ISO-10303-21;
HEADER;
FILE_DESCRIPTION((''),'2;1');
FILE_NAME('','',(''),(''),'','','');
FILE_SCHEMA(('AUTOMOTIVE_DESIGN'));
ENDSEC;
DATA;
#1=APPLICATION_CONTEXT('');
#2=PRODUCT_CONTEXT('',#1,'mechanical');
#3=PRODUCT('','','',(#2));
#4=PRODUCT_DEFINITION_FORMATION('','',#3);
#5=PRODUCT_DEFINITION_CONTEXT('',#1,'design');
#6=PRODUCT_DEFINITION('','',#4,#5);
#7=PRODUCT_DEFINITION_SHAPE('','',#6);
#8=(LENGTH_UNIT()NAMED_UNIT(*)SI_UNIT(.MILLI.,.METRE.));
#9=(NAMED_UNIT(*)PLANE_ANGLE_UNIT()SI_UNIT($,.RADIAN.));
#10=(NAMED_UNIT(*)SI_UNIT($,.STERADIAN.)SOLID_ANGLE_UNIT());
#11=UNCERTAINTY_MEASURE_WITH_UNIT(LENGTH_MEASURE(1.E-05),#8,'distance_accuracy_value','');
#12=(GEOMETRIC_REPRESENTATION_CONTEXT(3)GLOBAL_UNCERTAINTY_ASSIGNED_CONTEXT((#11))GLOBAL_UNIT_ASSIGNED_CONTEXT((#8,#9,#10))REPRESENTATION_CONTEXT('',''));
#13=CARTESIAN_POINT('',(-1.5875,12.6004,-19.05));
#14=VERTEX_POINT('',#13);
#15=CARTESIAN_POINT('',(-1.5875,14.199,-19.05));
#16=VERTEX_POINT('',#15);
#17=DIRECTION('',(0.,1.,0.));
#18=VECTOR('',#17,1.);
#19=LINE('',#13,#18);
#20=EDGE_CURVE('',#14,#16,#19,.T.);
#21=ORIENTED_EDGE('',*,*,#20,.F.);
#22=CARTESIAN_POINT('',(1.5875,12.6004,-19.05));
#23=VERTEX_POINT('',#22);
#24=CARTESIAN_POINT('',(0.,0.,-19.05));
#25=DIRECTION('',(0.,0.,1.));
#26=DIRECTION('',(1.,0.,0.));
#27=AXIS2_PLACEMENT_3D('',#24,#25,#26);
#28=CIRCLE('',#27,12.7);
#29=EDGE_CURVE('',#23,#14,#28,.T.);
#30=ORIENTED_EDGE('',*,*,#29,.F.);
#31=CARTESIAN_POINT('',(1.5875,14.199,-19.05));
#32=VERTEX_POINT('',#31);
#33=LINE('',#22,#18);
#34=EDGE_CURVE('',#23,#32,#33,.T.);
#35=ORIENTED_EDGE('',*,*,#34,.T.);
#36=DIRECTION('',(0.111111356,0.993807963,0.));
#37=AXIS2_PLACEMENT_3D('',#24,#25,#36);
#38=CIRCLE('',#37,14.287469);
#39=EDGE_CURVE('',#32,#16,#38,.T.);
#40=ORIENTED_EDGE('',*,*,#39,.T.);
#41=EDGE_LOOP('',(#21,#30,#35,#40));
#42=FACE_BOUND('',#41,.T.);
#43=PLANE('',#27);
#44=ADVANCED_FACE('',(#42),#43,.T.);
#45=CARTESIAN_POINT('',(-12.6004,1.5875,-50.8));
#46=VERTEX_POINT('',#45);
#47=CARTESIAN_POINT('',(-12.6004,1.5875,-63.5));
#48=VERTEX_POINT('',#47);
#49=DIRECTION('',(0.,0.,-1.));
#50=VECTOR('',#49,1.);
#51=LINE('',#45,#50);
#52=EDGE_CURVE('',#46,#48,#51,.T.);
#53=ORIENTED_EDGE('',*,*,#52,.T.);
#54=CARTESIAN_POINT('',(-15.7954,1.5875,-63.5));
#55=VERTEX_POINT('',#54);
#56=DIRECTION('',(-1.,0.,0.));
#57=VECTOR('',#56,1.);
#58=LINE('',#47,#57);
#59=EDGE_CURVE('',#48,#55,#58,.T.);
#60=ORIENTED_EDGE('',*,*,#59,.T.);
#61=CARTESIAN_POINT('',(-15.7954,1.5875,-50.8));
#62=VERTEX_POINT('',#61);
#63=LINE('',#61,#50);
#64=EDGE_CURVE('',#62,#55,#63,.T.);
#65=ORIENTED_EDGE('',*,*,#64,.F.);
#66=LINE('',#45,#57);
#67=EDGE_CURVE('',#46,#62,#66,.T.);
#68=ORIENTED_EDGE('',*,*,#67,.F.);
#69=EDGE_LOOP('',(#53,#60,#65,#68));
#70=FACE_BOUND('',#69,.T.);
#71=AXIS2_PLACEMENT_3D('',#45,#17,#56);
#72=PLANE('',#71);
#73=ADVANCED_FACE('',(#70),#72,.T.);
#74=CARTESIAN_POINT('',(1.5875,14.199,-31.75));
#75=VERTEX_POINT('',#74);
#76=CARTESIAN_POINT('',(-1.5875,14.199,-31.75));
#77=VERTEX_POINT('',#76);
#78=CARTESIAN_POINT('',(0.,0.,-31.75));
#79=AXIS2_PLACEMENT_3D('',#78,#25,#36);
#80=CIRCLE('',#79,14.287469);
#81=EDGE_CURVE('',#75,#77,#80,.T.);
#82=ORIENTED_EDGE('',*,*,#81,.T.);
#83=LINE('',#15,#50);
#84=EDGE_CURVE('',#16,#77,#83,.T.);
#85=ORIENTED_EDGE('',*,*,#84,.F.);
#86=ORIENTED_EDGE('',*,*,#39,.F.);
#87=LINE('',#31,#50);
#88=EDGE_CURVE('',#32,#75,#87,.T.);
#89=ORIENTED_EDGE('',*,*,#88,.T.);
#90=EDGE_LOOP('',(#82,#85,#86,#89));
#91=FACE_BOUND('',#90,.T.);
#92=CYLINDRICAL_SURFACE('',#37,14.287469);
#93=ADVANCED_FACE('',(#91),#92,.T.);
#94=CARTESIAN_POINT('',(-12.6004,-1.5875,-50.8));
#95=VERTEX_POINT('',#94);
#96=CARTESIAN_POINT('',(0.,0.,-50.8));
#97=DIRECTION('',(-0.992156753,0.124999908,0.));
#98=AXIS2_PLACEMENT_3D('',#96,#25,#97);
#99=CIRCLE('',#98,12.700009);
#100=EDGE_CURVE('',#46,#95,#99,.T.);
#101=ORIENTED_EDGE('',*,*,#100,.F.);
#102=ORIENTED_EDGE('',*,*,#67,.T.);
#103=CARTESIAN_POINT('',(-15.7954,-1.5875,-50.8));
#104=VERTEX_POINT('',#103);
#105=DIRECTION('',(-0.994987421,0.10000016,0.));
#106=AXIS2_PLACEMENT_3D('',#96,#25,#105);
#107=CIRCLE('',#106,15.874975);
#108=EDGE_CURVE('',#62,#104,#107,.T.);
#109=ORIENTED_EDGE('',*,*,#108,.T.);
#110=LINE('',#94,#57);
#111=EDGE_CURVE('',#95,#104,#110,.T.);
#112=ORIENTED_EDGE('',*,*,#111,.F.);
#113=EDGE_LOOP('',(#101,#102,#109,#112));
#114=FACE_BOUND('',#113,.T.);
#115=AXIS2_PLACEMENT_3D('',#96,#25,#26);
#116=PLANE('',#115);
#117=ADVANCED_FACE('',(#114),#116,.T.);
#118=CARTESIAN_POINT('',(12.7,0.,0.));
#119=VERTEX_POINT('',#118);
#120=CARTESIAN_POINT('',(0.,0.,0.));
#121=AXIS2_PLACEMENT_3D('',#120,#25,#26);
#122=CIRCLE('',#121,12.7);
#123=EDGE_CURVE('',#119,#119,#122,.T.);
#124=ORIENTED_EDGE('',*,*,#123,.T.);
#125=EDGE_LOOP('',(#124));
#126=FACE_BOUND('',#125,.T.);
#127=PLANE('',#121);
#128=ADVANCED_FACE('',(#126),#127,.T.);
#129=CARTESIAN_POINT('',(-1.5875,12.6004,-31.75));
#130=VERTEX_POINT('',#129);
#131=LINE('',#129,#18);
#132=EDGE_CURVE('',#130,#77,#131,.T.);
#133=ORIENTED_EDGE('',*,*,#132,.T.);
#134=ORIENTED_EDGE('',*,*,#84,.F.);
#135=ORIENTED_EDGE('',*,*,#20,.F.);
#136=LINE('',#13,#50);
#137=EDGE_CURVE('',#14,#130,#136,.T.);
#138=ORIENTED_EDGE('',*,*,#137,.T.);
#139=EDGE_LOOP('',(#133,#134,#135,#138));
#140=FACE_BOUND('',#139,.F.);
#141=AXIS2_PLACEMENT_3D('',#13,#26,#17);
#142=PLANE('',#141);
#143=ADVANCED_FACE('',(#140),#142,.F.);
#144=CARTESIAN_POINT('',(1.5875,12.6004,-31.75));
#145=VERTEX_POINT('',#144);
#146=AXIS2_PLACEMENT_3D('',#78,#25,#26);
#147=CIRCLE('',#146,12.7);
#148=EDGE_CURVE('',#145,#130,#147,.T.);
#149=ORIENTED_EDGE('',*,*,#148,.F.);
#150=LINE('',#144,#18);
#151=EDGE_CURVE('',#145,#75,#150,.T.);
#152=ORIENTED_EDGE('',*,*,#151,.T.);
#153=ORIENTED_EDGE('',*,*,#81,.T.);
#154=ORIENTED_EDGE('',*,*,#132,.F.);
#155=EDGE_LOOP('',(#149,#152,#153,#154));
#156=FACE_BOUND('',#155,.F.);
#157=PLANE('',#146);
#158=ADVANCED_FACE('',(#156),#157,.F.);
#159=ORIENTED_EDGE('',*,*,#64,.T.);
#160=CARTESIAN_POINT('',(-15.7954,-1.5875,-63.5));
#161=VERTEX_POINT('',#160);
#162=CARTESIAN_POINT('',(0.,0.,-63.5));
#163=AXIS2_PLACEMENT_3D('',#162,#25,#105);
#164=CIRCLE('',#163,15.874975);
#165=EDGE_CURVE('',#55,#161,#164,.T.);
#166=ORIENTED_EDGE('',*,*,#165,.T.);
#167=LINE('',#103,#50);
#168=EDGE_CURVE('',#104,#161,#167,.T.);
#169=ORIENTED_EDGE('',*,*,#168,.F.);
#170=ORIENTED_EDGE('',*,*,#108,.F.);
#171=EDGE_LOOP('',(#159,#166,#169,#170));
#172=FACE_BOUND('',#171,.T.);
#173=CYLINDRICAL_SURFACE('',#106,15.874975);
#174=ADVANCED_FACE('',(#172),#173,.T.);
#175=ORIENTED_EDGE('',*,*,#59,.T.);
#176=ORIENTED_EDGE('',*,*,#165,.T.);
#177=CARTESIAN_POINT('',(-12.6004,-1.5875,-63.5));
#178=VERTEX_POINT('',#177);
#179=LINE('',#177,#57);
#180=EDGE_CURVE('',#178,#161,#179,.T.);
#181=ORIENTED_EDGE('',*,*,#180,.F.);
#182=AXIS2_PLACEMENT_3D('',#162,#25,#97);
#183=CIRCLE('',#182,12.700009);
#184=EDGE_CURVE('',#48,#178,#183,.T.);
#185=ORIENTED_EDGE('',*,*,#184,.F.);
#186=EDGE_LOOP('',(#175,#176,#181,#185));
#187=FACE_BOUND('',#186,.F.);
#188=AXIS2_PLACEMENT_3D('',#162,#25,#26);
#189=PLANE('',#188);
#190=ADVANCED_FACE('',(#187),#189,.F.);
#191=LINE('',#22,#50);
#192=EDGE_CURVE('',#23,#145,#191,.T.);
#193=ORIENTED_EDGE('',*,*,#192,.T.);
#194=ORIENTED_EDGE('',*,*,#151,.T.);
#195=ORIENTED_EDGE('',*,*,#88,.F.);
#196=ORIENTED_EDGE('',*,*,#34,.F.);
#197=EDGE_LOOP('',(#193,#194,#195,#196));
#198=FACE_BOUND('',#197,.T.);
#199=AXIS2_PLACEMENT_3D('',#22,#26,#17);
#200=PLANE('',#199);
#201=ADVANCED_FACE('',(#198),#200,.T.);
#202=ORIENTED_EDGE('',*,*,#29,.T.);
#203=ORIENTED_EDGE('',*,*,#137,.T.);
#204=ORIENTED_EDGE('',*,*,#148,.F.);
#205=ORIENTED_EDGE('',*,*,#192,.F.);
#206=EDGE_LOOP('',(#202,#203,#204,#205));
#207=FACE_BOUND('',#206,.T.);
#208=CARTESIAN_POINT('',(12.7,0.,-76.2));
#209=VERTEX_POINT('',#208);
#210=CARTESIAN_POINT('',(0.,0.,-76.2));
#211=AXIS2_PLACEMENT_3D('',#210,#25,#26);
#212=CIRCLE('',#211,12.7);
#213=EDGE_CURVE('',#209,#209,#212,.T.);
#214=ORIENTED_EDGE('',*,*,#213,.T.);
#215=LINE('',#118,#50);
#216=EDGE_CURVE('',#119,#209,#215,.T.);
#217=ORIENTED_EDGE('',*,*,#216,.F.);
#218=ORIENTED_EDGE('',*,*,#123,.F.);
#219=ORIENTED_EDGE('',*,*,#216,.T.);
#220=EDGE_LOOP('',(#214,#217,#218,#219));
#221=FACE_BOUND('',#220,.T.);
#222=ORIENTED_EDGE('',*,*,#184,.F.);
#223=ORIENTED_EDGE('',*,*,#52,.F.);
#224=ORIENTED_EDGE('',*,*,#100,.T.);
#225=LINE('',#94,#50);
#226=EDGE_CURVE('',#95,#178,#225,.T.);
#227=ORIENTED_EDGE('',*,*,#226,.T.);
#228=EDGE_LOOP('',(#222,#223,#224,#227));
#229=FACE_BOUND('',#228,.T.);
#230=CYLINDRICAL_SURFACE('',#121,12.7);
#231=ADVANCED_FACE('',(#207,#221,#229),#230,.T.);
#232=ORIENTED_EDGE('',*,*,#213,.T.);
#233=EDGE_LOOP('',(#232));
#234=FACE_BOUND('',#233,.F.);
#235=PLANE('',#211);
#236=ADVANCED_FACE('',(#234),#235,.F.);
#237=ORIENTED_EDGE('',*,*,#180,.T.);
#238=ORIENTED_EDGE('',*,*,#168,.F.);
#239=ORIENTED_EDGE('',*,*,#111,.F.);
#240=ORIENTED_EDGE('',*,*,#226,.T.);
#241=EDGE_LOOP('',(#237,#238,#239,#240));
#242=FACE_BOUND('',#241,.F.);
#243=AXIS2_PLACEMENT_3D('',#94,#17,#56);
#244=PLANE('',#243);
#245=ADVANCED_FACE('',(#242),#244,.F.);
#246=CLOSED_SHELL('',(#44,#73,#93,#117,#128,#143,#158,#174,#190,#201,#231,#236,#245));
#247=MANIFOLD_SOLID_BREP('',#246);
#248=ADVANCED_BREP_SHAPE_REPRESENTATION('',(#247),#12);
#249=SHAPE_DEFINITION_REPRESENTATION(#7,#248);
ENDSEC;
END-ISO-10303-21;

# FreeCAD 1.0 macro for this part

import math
import FreeCAD as App
import Part
import Sketcher
from FreeCAD import Vector
Q = App.Units.Quantity

doc = App.newDocument("Part")
body = doc.addObject("PartDesign::Body", "Body")

sketch1 = body.newObject("Sketcher::SketchObject", "Sketch")
sketch1.AttachmentSupport = (doc.getObject("XY_Plane"), [""])
sketch1.MapMode = "FlatFace"
sketch1.addGeometry(Part.Circle(Vector(0, 0, 0), Vector(0, 0, 1), 12.7), False)
sketch1.addConstraint(Sketcher.Constraint("Coincident", 0, 3, -1, 1))
sketch1.addConstraint(Sketcher.Constraint("Diameter", 0, Q("1 in")))
pad1 = body.newObject("PartDesign::Pad", "Pad")
pad1.Profile = sketch1
pad1.Length = Q("3 in")
pad1.Reversed = True

sketch2 = body.newObject("Sketcher::SketchObject", "Sketch001")
sketch2.AttachmentSupport = (doc.getObject("XY_Plane"), [""])
sketch2.MapMode = "FlatFace"
sketch2.AttachmentOffset = App.Placement(Vector(0, 0, -0.75 * 25.4), App.Rotation())
sketch2.addGeometry(Part.ArcOfCircle(Part.Circle(Vector(0, 0, 0), Vector(0, 0, 1), 12.7), math.radians(82.81925), math.radians(97.18075)), False)
sketch2.addGeometry(Part.LineSegment(Vector(1.5875, 12.6004, 0), Vector(1.5875, 14.199, 0)), False)
sketch2.addGeometry(Part.ArcOfCircle(Part.Circle(Vector(0, 0, 0), Vector(0, 0, 1), 14.287469), math.radians(83.620616), math.radians(96.379384)), False)
sketch2.addGeometry(Part.LineSegment(Vector(-1.5875, 14.199, 0), Vector(-1.5875, 12.6004, 0)), False)
sketch2.addConstraint(Sketcher.Constraint("Coincident", 0, 1, 1, 1))
sketch2.addConstraint(Sketcher.Constraint("Coincident", 1, 2, 2, 1))
sketch2.addConstraint(Sketcher.Constraint("Coincident", 2, 2, 3, 1))
sketch2.addConstraint(Sketcher.Constraint("Coincident", 3, 2, 0, 2))
sketch2.addConstraint(Sketcher.Constraint("Vertical", 1))
sketch2.addConstraint(Sketcher.Constraint("Vertical", 3))
sketch2.addConstraint(Sketcher.Constraint("Coincident", 0, 3, -1, 1))
sketch2.addConstraint(Sketcher.Constraint("Coincident", 2, 3, -1, 1))
sketch2.addConstraint(Sketcher.Constraint("Horizontal", 1, 2, 2, 2))
sketch2.addConstraint(Sketcher.Constraint("Radius", 2, Q("0.5625 in")))
sketch2.addConstraint(Sketcher.Constraint("Radius", 0, Q("0.5 in")))
sketch2.addConstraint(Sketcher.Constraint("DistanceX", -1, 1, 0, 1, Q("0.0625 in")))
pad2 = body.newObject("PartDesign::Pad", "Pad001")
pad2.Profile = sketch2
pad2.Length = Q("0.5 in")
pad2.Reversed = True

sketch3 = body.newObject("Sketcher::SketchObject", "Sketch002")
sketch3.AttachmentSupport = (doc.getObject("XY_Plane"), [""])
sketch3.MapMode = "FlatFace"
sketch3.AttachmentOffset = App.Placement(Vector(0, 0, -2 * 25.4), App.Rotation())
sketch3.addGeometry(Part.LineSegment(Vector(-12.6004, 1.5875, 0), Vector(-15.7954, 1.5875, 0)), False)
sketch3.addGeometry(Part.ArcOfCircle(Part.Circle(Vector(0, 0, 0), Vector(0, 0, 1), 15.874975), math.radians(174.26082), math.radians(185.73918)), False)
sketch3.addGeometry(Part.LineSegment(Vector(-15.7954, -1.5875, 0), Vector(-12.6004, -1.5875, 0)), False)
sketch3.addGeometry(Part.ArcOfCircle(Part.Circle(Vector(0, 0, 0), Vector(0, 0, 1), 12.700009), math.radians(172.81925), math.radians(187.18075)), False)
sketch3.addConstraint(Sketcher.Constraint("Coincident", 0, 2, 1, 1))
sketch3.addConstraint(Sketcher.Constraint("Coincident", 1, 2, 2, 1))
sketch3.addConstraint(Sketcher.Constraint("Coincident", 2, 2, 3, 2))
sketch3.addConstraint(Sketcher.Constraint("Coincident", 3, 1, 0, 1))
sketch3.addConstraint(Sketcher.Constraint("Horizontal", 0))
sketch3.addConstraint(Sketcher.Constraint("Horizontal", 2))
sketch3.addConstraint(Sketcher.Constraint("Coincident", 1, 3, -1, 1))
sketch3.addConstraint(Sketcher.Constraint("Coincident", 3, 3, -1, 1))
sketch3.addConstraint(Sketcher.Constraint("Vertical", 0, 2, 1, 2))
sketch3.addConstraint(Sketcher.Constraint("Radius", 1, Q("0.625 in")))
sketch3.addConstraint(Sketcher.Constraint("Radius", 3, Q("0.5 in")))
sketch3.addConstraint(Sketcher.Constraint("DistanceY", -1, 1, 0, 2, Q("0.0625 in")))
pad3 = body.newObject("PartDesign::Pad", "Pad002")
pad3.Profile = sketch3
pad3.Length = Q("0.5 in")
pad3.Reversed = True

doc.recompute()
